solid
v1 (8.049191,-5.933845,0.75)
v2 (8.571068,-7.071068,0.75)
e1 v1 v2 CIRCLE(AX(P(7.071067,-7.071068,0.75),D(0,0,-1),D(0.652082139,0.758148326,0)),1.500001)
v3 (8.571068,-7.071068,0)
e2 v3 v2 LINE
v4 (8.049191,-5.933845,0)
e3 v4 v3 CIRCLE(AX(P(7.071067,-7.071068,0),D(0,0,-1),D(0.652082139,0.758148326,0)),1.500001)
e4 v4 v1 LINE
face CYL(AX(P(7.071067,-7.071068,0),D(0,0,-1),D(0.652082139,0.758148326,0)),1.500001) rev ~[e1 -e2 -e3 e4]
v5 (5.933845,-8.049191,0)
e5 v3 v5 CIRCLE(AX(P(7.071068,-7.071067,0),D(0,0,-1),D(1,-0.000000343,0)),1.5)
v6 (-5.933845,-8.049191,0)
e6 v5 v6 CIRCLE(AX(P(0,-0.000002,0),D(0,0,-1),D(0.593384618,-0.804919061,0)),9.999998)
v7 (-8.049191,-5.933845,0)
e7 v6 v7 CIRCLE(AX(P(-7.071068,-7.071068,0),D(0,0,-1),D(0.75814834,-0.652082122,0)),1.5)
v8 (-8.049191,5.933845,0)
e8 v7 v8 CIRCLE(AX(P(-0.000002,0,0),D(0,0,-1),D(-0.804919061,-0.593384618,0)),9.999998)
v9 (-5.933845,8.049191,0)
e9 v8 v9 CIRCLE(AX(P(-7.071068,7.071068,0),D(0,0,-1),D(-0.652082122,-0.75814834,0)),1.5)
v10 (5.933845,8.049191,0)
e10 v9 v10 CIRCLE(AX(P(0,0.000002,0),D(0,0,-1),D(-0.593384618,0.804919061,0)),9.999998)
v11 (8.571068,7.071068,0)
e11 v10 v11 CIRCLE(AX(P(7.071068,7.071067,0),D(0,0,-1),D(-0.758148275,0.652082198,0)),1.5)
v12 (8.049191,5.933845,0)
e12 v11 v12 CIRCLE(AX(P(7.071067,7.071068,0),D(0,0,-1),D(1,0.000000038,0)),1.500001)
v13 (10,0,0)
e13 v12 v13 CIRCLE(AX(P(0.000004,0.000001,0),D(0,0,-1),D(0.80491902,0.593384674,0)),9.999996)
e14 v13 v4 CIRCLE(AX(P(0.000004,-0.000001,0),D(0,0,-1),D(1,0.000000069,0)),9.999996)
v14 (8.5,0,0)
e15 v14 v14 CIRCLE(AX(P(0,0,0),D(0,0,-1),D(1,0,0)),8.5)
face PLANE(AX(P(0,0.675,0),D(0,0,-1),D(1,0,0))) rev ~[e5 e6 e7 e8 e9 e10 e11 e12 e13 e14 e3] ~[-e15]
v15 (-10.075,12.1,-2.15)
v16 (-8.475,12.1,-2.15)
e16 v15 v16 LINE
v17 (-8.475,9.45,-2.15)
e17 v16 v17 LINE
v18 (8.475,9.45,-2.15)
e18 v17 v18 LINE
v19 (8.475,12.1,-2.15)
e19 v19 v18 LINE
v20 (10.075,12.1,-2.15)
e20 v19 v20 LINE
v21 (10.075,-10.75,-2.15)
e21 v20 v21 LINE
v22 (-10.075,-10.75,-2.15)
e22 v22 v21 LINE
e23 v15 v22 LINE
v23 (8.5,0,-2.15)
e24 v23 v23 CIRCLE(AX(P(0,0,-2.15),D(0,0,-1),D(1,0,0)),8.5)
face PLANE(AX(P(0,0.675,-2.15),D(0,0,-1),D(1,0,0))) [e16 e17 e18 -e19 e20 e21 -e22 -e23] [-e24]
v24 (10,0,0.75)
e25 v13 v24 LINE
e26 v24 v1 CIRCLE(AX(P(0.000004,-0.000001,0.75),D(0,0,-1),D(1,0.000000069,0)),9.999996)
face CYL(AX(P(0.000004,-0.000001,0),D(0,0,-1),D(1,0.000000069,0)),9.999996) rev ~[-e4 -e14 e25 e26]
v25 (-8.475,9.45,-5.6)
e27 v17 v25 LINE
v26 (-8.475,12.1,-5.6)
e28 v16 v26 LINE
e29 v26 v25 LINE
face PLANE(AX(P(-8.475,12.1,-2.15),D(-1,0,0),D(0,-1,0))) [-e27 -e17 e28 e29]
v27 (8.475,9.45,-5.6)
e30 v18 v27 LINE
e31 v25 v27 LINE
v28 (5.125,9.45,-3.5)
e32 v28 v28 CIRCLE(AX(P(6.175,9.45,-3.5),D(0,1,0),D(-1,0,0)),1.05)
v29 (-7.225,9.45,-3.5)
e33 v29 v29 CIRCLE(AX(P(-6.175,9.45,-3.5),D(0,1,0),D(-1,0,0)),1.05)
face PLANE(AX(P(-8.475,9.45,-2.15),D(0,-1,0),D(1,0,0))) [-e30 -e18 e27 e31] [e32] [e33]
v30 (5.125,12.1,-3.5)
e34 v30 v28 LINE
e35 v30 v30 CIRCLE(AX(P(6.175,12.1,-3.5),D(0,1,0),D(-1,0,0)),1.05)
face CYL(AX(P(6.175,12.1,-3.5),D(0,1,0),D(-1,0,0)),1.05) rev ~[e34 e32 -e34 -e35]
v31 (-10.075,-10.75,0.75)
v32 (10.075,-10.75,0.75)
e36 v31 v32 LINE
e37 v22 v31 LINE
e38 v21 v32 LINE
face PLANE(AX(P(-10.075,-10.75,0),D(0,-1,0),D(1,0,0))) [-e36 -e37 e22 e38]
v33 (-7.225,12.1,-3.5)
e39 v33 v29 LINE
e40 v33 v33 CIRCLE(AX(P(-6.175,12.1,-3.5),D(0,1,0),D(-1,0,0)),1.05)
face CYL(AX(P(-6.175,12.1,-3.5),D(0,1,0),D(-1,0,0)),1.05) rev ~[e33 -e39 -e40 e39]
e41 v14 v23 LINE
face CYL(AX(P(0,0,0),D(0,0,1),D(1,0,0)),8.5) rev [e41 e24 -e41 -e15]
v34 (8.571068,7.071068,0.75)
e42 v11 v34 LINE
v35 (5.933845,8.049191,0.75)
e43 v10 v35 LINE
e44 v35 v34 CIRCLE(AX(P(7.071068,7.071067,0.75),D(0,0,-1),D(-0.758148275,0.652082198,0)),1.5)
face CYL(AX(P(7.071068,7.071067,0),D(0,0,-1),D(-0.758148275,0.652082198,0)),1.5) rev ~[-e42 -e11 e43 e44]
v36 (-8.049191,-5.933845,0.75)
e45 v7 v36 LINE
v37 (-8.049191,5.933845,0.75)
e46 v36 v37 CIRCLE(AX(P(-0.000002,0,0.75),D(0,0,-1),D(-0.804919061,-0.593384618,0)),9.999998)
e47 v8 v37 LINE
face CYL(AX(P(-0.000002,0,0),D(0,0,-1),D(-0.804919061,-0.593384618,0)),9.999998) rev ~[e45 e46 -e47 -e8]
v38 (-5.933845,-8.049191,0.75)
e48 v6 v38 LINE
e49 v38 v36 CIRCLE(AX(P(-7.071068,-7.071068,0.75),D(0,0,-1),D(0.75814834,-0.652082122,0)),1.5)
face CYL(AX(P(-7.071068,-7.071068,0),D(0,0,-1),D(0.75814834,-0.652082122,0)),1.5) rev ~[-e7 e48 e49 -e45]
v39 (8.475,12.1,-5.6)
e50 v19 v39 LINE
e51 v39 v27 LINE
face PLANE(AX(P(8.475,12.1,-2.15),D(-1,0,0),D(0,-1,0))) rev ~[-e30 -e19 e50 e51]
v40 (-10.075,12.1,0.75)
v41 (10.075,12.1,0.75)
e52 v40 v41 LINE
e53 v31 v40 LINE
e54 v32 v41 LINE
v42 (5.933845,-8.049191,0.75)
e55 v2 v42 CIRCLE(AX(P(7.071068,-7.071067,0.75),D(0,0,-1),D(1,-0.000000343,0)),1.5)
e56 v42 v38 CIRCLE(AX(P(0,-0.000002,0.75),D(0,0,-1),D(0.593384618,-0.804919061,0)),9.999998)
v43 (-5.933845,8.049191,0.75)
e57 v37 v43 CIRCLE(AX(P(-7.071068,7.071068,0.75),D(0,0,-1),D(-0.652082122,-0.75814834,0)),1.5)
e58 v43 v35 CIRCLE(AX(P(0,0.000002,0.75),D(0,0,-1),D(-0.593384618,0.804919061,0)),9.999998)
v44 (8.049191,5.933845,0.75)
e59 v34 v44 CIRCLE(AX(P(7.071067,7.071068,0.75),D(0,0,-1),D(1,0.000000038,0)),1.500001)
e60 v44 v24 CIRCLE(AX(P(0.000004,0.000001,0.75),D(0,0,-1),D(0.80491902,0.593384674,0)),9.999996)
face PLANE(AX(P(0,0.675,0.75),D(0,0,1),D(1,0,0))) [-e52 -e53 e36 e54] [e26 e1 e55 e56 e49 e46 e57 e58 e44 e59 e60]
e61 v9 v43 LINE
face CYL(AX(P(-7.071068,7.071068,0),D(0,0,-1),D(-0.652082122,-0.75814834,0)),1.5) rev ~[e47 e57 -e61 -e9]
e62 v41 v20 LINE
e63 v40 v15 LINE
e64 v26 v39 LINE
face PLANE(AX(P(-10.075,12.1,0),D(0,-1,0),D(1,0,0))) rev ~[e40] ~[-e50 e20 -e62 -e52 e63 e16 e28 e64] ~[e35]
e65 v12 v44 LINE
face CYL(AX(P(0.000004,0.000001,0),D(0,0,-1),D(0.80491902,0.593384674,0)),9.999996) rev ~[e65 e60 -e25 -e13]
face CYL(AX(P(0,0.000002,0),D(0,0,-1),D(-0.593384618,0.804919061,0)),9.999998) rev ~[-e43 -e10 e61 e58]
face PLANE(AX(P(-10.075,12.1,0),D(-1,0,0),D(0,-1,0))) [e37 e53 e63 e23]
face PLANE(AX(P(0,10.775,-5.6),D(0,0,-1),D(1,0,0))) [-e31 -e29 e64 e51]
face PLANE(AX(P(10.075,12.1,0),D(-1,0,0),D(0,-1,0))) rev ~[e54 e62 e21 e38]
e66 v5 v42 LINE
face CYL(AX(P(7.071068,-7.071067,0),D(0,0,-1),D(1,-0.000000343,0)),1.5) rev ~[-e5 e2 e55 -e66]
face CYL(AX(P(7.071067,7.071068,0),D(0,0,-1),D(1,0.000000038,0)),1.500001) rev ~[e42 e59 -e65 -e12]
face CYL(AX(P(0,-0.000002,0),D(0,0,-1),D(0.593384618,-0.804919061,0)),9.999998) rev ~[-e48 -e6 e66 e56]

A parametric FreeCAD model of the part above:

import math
import FreeCAD as App
import Part
import Sketcher

V = App.Vector
Q = App.Units.Quantity


def add_polygon(sketch, points):
    """Adds a closed chain of lines whose ends are joined by coincident constraints."""
    first, n = sketch.GeometryCount, len(points)
    for a, b in zip(points, points[1:] + points[:1]):
        sketch.addGeometry(Part.LineSegment(App.Vector(*a, 0), App.Vector(*b, 0)), False)
    for i in range(n):
        sketch.addConstraint(Sketcher.Constraint("Coincident", first + i, 2, first + (i + 1) % n, 1))

doc = App.newDocument("Part")
params = doc.addObject("Spreadsheet::Sheet", "Params")
for row, (alias, value) in enumerate([
    ("sketch1_radius", "9.999998 mm"),
    ("sketch1_radius2", "1.500001 mm"),
    ("sketch1_width", "20.15 mm"),
    ("sketch1_height", "22.85 mm"),
    ("pad1_length", "0.75 mm"),
    ("sketch2_diameter", "17 mm"),
    ("sketch2_width", "20.15 mm"),
    ("sketch2_height", "22.85 mm"),
    ("pad2_length", "2.15 mm"),
    ("sketch3_width", "16.95 mm"),
    ("sketch3_height", "2.65 mm"),
    ("pad3_length", "3.45 mm"),
    ("sketch4_diameter", "2.1 mm"),
], start=1):
    params.set(f"A{row}", alias)
    params.set(f"B{row}", "=" + value)
    params.setAlias(f"B{row}", alias)

body = doc.addObject("PartDesign::Body", "Body")

# Sketch on XY plane
sketch1 = doc.addObject("Sketcher::SketchObject", "Sketch")
body.addObject(sketch1)
sketch1.AttachmentSupport = (doc.XY_Plane, [""])
sketch1.MapMode = "FlatFace"
add_polygon(sketch1, [(-10.1, 12.1), (-10.1, -10.8), (10.1, -10.8), (10.1, 12.1)])  # lines 0-3
sketch1.addGeometry(Part.ArcOfCircle(Part.Circle(V(7.1, 7.1, 0), V(0, 0, 1), 1.5), math.radians(-49), math.radians(0)), False)  # 4
sketch1.addGeometry(Part.ArcOfCircle(Part.Circle(V(0, 0, 0), V(0, 0, 1), 10), math.radians(0), math.radians(36)), False)  # 5
sketch1.addGeometry(Part.ArcOfCircle(Part.Circle(V(0, 0, 0), V(0, 0, 1), 10), math.radians(-36), math.radians(0)), False)  # 6
sketch1.addGeometry(Part.ArcOfCircle(Part.Circle(V(7.1, -7.1, 0), V(0, 0, 1), 1.5), math.radians(0), math.radians(49)), False)  # 7
sketch1.addGeometry(Part.ArcOfCircle(Part.Circle(V(7.1, -7.1, 0), V(0, 0, 1), 1.5), math.radians(-139), math.radians(0)), False)  # 8
sketch1.addGeometry(Part.ArcOfCircle(Part.Circle(V(0, 0, 0), V(0, 0, 1), 10), math.radians(-126), math.radians(-54)), False)  # 9
sketch1.addGeometry(Part.ArcOfCircle(Part.Circle(V(-7.1, -7.1, 0), V(0, 0, 1), 1.5), math.radians(131), math.radians(319)), False)  # 10
sketch1.addGeometry(Part.ArcOfCircle(Part.Circle(V(0, 0, 0), V(0, 0, 1), 10), math.radians(144), math.radians(216)), False)  # 11
sketch1.addGeometry(Part.ArcOfCircle(Part.Circle(V(-7.1, 7.1, 0), V(0, 0, 1), 1.5), math.radians(41), math.radians(229)), False)  # 12
sketch1.addGeometry(Part.ArcOfCircle(Part.Circle(V(0, 0, 0), V(0, 0, 1), 10), math.radians(54), math.radians(126)), False)  # 13
sketch1.addGeometry(Part.ArcOfCircle(Part.Circle(V(7.1, 7.1, 0), V(0, 0, 1), 1.5), math.radians(0), math.radians(139)), False)  # 14
sketch1.addConstraint([
    Sketcher.Constraint("Coincident", 4, 1, 5, 2),
    Sketcher.Constraint("Tangent", 5, 1, 6, 2),
    Sketcher.Constraint("Coincident", 6, 1, 7, 2),
    Sketcher.Constraint("Tangent", 7, 1, 8, 2),
    Sketcher.Constraint("Coincident", 8, 1, 9, 2),
    Sketcher.Constraint("Coincident", 9, 1, 10, 2),
    Sketcher.Constraint("Coincident", 10, 1, 11, 2),
    Sketcher.Constraint("Coincident", 11, 1, 12, 2),
    Sketcher.Constraint("Coincident", 12, 1, 13, 2),
    Sketcher.Constraint("Coincident", 13, 1, 14, 2),
    Sketcher.Constraint("Tangent", 14, 1, 4, 2),
    Sketcher.Constraint("Vertical", 0),
    Sketcher.Constraint("Horizontal", 1),
    Sketcher.Constraint("Vertical", 2),
    Sketcher.Constraint("Horizontal", 3),
    Sketcher.Constraint("Coincident", 5, 3, -1, 1),
    Sketcher.Constraint("Coincident", 9, 3, -1, 1),
    Sketcher.Constraint("Coincident", 11, 3, -1, 1),
    Sketcher.Constraint("Coincident", 13, 3, -1, 1),
    Sketcher.Constraint("Equal", 5, 6),
    Sketcher.Constraint("Equal", 4, 7),
    Sketcher.Constraint("Equal", 7, 8),
    Sketcher.Constraint("Equal", 8, 10),
    Sketcher.Constraint("Equal", 9, 11),
    Sketcher.Constraint("Equal", 10, 12),
    Sketcher.Constraint("Equal", 11, 13),
    Sketcher.Constraint("Equal", 12, 14),
    Sketcher.Constraint("Symmetric", 4, 3, 10, 3, -1, 1),
    Sketcher.Constraint("Symmetric", 7, 3, 12, 3, -1, 1),
    Sketcher.Constraint("Symmetric", 7, 3, 10, 3, -2),
    Sketcher.Constraint("PointOnObject", 5, 1, -1),
    Sketcher.Constraint("Horizontal", 10, 3, 7, 1),
    Sketcher.Constraint("Horizontal", 6, 1, 10, 1),
    Sketcher.Constraint("Horizontal", 12, 3, 14, 1),
    Sketcher.Constraint("Radius", 9, Q("9.999998 mm")),
    Sketcher.Constraint("Radius", 4, Q("1.500001 mm")),
    Sketcher.Constraint("DistanceX", 1, 1, 1, 2, Q("20.15 mm")),
    Sketcher.Constraint("DistanceY", 0, 2, 0, 1, Q("22.85 mm")),
    Sketcher.Constraint("DistanceY", -1, 1, 2, 2, Q("12.1 mm")),
    Sketcher.Constraint("DistanceX", 0, 2, -1, 1, Q("10.075 mm")),
    Sketcher.Constraint("DistanceX", -1, 1, 4, 1, Q("8.049191 mm")),
    Sketcher.Constraint("DistanceY", 7, 1, -1, 1, Q("7.071068 mm")),
])
sketch1.setExpression("Constraints[38]", "Params.sketch1_radius")
sketch1.setExpression("Constraints[39]", "Params.sketch1_radius2")
sketch1.setExpression("Constraints[40]", "Params.sketch1_width")
sketch1.setExpression("Constraints[41]", "Params.sketch1_height")
pad1 = doc.addObject("PartDesign::Pad", "Pad")
body.addObject(pad1)
pad1.Profile = sketch1
pad1.setExpression("Length", "Params.pad1_length")

# Sketch on XY plane
sketch2 = doc.addObject("Sketcher::SketchObject", "Sketch001")
body.addObject(sketch2)
sketch2.AttachmentSupport = (doc.XY_Plane, [""])
sketch2.MapMode = "FlatFace"
add_polygon(sketch2, [(-10, -11), (-10, 12), (10, 12), (10, -11)])  # lines 0-3
sketch2.addGeometry(Part.Circle(V(0, 0, 0), V(0, 0, 1), 8), False)  # 4
sketch2.addConstraint([
    Sketcher.Constraint("Vertical", 0),
    Sketcher.Constraint("Horizontal", 1),
    Sketcher.Constraint("Vertical", 2),
    Sketcher.Constraint("Horizontal", 3),
    Sketcher.Constraint("Coincident", 4, 3, -1, 1),
    Sketcher.Constraint("Diameter", 4, Q("17 mm")),
    Sketcher.Constraint("DistanceX", 1, 1, 1, 2, Q("20.15 mm")),
    Sketcher.Constraint("DistanceY", 0, 1, 0, 2, Q("22.85 mm")),
    Sketcher.Constraint("DistanceY", -1, 1, 0, 2, Q("12.1 mm")),
    Sketcher.Constraint("DistanceX", 0, 2, -1, 1, Q("10.075 mm")),
])
sketch2.setExpression("Constraints[9]", "Params.sketch2_diameter")
sketch2.setExpression("Constraints[10]", "Params.sketch2_width")
sketch2.setExpression("Constraints[11]", "Params.sketch2_height")
pad2 = doc.addObject("PartDesign::Pad", "Pad001")
body.addObject(pad2)
pad2.Profile = sketch2
pad2.setExpression("Length", "Params.pad2_length")
pad2.Reversed = True

# Sketch on XY plane
sketch3 = doc.addObject("Sketcher::SketchObject", "Sketch002")
body.addObject(sketch3)
sketch3.AttachmentSupport = (doc.XY_Plane, [""])
sketch3.MapMode = "FlatFace"
sketch3.AttachmentOffset = App.Placement(V(0, 0, -2.15), App.Rotation())
add_polygon(sketch3, [(-8.5, 9.4), (-8.5, 12.1), (8.5, 12.1), (8.5, 9.4)])  # lines 0-3
sketch3.addConstraint([
    Sketcher.Constraint("Vertical", 0),
    Sketcher.Constraint("Horizontal", 1),
    Sketcher.Constraint("Vertical", 2),
    Sketcher.Constraint("Horizontal", 3),
    Sketcher.Constraint("DistanceX", 1, 1, 1, 2, Q("16.95 mm")),
    Sketcher.Constraint("DistanceY", 0, 1, 0, 2, Q("2.65 mm")),
    Sketcher.Constraint("DistanceY", -1, 1, 0, 2, Q("12.1 mm")),
    Sketcher.Constraint("DistanceX", 0, 2, -1, 1, Q("8.475 mm")),
])
sketch3.setExpression("Constraints[8]", "Params.sketch3_width")
sketch3.setExpression("Constraints[9]", "Params.sketch3_height")
pad3 = doc.addObject("PartDesign::Pad", "Pad002")
body.addObject(pad3)
pad3.Profile = sketch3
pad3.setExpression("Length", "Params.pad3_length")
pad3.Reversed = True

# Sketch on XZ plane
sketch4 = doc.addObject("Sketcher::SketchObject", "Sketch003")
body.addObject(sketch4)
sketch4.AttachmentSupport = (doc.XZ_Plane, [""])
sketch4.MapMode = "FlatFace"
sketch4.AttachmentOffset = App.Placement(V(0, 0, -12.1), App.Rotation())
sketch4.addGeometry([
    Part.Circle(V(6.2, -3.5, 0), V(0, 0, 1), 1.1),
    Part.Circle(V(-6.2, -3.5, 0), V(0, 0, 1), 1.1),
], False)
sketch4.addConstraint([
    Sketcher.Constraint("Equal", 0, 1),
    Sketcher.Constraint("Symmetric", 0, 3, 1, 3, -2),
    Sketcher.Constraint("Diameter", 0, Q("2.1 mm")),
    Sketcher.Constraint("DistanceY", 0, 3, -1, 1, Q("3.5 mm")),
    Sketcher.Constraint("DistanceX", 1, 3, 0, 3, Q("12.35 mm")),
])
sketch4.setExpression("Constraints[2]", "Params.sketch4_diameter")
pocket1 = doc.addObject("PartDesign::Pocket", "Pocket")
body.addObject(pocket1)
pocket1.Profile = sketch4
pocket1.Type = "ThroughAll"
pocket1.Reversed = True

doc.recompute()
